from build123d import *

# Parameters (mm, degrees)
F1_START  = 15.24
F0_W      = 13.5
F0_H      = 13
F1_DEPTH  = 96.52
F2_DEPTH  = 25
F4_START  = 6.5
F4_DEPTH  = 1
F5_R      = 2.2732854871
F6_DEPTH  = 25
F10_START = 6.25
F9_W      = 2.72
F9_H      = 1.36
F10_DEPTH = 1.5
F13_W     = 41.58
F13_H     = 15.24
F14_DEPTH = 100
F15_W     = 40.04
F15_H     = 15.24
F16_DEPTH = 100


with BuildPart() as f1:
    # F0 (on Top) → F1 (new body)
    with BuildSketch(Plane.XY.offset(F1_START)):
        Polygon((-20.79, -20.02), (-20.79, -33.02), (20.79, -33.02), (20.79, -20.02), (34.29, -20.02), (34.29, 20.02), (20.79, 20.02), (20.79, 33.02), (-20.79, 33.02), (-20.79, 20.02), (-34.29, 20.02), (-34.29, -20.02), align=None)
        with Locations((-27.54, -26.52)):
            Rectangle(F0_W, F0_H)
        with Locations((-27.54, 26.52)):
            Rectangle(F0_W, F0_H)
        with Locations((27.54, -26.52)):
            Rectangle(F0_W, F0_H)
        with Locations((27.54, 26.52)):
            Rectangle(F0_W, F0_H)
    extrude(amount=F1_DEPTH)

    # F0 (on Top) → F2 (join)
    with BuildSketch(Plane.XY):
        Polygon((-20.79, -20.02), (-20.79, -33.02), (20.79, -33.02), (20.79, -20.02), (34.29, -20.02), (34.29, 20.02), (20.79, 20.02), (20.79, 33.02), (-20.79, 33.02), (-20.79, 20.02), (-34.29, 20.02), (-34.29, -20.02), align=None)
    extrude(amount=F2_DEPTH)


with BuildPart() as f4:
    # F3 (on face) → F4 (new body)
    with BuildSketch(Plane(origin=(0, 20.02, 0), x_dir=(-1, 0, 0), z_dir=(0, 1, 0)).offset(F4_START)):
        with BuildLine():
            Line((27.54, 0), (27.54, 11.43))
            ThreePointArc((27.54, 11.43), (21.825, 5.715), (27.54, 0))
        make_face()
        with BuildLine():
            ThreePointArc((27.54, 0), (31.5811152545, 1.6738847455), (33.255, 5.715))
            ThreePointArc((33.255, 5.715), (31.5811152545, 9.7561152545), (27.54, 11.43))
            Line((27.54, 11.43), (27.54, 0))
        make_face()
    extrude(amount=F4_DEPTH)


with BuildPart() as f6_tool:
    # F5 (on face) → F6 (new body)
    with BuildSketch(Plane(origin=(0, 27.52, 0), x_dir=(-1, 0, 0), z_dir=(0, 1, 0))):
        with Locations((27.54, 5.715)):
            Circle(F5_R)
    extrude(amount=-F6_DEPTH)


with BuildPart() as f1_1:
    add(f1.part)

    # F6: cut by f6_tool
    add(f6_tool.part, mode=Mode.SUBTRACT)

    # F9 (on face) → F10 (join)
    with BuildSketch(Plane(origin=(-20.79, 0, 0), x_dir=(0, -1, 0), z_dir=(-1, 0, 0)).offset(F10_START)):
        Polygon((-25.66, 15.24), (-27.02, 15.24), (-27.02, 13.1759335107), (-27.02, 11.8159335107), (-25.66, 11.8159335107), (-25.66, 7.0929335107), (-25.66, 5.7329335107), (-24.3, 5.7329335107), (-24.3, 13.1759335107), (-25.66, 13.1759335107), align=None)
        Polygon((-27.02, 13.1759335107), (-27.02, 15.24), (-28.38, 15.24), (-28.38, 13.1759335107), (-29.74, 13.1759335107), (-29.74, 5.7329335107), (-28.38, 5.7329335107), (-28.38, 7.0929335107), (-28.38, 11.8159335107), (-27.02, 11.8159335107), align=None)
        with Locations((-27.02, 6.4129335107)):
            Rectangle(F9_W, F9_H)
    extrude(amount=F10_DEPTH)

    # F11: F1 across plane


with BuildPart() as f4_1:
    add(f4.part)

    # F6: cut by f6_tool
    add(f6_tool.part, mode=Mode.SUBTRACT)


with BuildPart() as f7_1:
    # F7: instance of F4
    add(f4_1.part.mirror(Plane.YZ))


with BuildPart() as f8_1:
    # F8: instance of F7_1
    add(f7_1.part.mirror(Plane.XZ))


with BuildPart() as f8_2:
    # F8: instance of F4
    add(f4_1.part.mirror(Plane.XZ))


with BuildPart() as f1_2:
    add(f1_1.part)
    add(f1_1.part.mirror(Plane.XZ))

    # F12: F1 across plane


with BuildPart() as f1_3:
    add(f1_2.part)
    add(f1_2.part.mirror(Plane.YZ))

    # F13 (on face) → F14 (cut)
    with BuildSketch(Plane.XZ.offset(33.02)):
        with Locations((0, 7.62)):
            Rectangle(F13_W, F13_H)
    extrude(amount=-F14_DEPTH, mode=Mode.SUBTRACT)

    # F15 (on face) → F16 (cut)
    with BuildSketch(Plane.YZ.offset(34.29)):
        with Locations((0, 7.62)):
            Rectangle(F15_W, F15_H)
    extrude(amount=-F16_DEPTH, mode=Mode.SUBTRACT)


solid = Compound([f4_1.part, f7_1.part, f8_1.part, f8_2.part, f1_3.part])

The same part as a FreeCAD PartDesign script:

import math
import FreeCAD as App
import Part
import Sketcher

doc = App.newDocument("Part")
body = doc.addObject("PartDesign::Body", "Body")

sketch1 = body.newObject("Sketcher::SketchObject", "Sketch")
sketch1.AttachmentSupport = (doc.getObject("XY_Plane"), [""])
sketch1.MapMode = "FlatFace"
sketch1.AttachmentOffset = App.Placement(App.Vector(0, 0, 15.24), App.Rotation())
sketch1.addGeometry([
    Part.LineSegment(App.Vector(-34, 33, 0), App.Vector(-34, -33, 0)),
    Part.LineSegment(App.Vector(-34, -33, 0), App.Vector(34, -33, 0)),
    Part.LineSegment(App.Vector(34, -33, 0), App.Vector(34, 33, 0)),
    Part.LineSegment(App.Vector(34, 33, 0), App.Vector(-34, 33, 0)),
], False)
sketch1.addConstraint([
    Sketcher.Constraint("Coincident", 0, 2, 1, 1),
    Sketcher.Constraint("Coincident", 1, 2, 2, 1),
    Sketcher.Constraint("Coincident", 2, 2, 3, 1),
    Sketcher.Constraint("Coincident", 3, 2, 0, 1),
    Sketcher.Constraint("Vertical", 0),
    Sketcher.Constraint("Horizontal", 1),
    Sketcher.Constraint("Vertical", 2),
    Sketcher.Constraint("Horizontal", 3),
    Sketcher.Constraint("Symmetric", 0, 2, 2, 2, -1, 1),
    Sketcher.Constraint("DistanceX", 1, 1, 1, 2, 68.58),
    Sketcher.Constraint("DistanceY", 0, 2, 0, 1, 66.04),
])
pad1 = body.newObject("PartDesign::Pad", "Pad")
pad1.Profile = sketch1
pad1.Length = 96.52

sketch2 = body.newObject("Sketcher::SketchObject", "Sketch001")
sketch2.AttachmentSupport = (doc.getObject("XY_Plane"), [""])
sketch2.MapMode = "FlatFace"
sketch2.addGeometry([
    Part.LineSegment(App.Vector(-21, -20, 0), App.Vector(-21, -33, 0)),
    Part.LineSegment(App.Vector(-21, -33, 0), App.Vector(21, -33, 0)),
    Part.LineSegment(App.Vector(21, -33, 0), App.Vector(21, -20, 0)),
    Part.LineSegment(App.Vector(21, -20, 0), App.Vector(34, -20, 0)),
    Part.LineSegment(App.Vector(34, -20, 0), App.Vector(34, 20, 0)),
    Part.LineSegment(App.Vector(34, 20, 0), App.Vector(21, 20, 0)),
    Part.LineSegment(App.Vector(21, 20, 0), App.Vector(21, 33, 0)),
    Part.LineSegment(App.Vector(21, 33, 0), App.Vector(-21, 33, 0)),
    Part.LineSegment(App.Vector(-21, 33, 0), App.Vector(-21, 20, 0)),
    Part.LineSegment(App.Vector(-21, 20, 0), App.Vector(-34, 20, 0)),
    Part.LineSegment(App.Vector(-34, 20, 0), App.Vector(-34, -20, 0)),
    Part.LineSegment(App.Vector(-34, -20, 0), App.Vector(-21, -20, 0)),
], False)
sketch2.addConstraint([
    Sketcher.Constraint("Coincident", 0, 2, 1, 1),
    Sketcher.Constraint("Coincident", 1, 2, 2, 1),
    Sketcher.Constraint("Coincident", 2, 2, 3, 1),
    Sketcher.Constraint("Coincident", 3, 2, 4, 1),
    Sketcher.Constraint("Coincident", 4, 2, 5, 1),
    Sketcher.Constraint("Coincident", 5, 2, 6, 1),
    Sketcher.Constraint("Coincident", 6, 2, 7, 1),
    Sketcher.Constraint("Coincident", 7, 2, 8, 1),
    Sketcher.Constraint("Coincident", 8, 2, 9, 1),
    Sketcher.Constraint("Coincident", 9, 2, 10, 1),
    Sketcher.Constraint("Coincident", 10, 2, 11, 1),
    Sketcher.Constraint("Coincident", 11, 2, 0, 1),
    Sketcher.Constraint("Vertical", 0),
    Sketcher.Constraint("Horizontal", 1),
    Sketcher.Constraint("Vertical", 2),
    Sketcher.Constraint("Horizontal", 3),
    Sketcher.Constraint("Vertical", 4),
    Sketcher.Constraint("Horizontal", 5),
    Sketcher.Constraint("Vertical", 6),
    Sketcher.Constraint("Horizontal", 7),
    Sketcher.Constraint("Vertical", 8),
    Sketcher.Constraint("Horizontal", 9),
    Sketcher.Constraint("Vertical", 10),
    Sketcher.Constraint("Horizontal", 11),
    Sketcher.Constraint("Symmetric", 0, 2, 6, 2, -1, 1),
    Sketcher.Constraint("Symmetric", 2, 2, 8, 2, -1, 1),
    Sketcher.Constraint("Symmetric", 4, 2, 10, 2, -1, 1),
    Sketcher.Constraint("Symmetric", 5, 2, 8, 2, -2),
    Sketcher.Constraint("DistanceY", 0, 2, 0, 1, 13.0),
    Sketcher.Constraint("DistanceX", 3, 1, 3, 2, 13.5),
    Sketcher.Constraint("DistanceX", 1, 1, 1, 2, 41.58),
    Sketcher.Constraint("DistanceY", 4, 1, 4, 2, 40.04),
])
pad2 = body.newObject("PartDesign::Pad", "Pad001")
pad2.Profile = sketch2
pad2.Length = 25
body2 = doc.addObject("PartDesign::Body", "Body001")

sketch3 = body2.newObject("Sketcher::SketchObject", "Sketch002")
sketch3.AttachmentSupport = (doc.getObject("XZ_Plane001"), [""])
sketch3.MapMode = "FlatFace"
sketch3.AttachmentOffset = App.Placement(App.Vector(0, 0, -26.52), App.Rotation())
sketch3.addGeometry([
    Part.ArcOfCircle(Part.Circle(App.Vector(-28, 6, 0), App.Vector(0, 0, 1), 6), math.radians(-90), math.radians(90)),
    Part.ArcOfCircle(Part.Circle(App.Vector(-28, 6, 0), App.Vector(0, 0, 1), 6), math.radians(180), math.radians(270)),
    Part.ArcOfCircle(Part.Circle(App.Vector(-28, 6, 0), App.Vector(0, 0, 1), 6), math.radians(90), math.radians(180)),
], False)
sketch3.addConstraint([
    Sketcher.Constraint("Tangent", 0, 1, 1, 2),
    Sketcher.Constraint("Tangent", 1, 1, 2, 2),
    Sketcher.Constraint("Tangent", 2, 1, 0, 2),
    Sketcher.Constraint("PointOnObject", 0, 1, -1),
    Sketcher.Constraint("Horizontal", 2, 3, 1, 1),
    Sketcher.Constraint("Vertical", 2, 3, 0, 1),
    Sketcher.Constraint("Vertical", 0, 1, 2, 1),
    Sketcher.Constraint("Radius", 0, 5.715),
    Sketcher.Constraint("DistanceX", 0, 3, -1, 1, 27.54),
])
pad3 = body2.newObject("PartDesign::Pad", "Pad002")
pad3.Profile = sketch3
pad3.Length = 1
pad3.Reversed = True
body3 = doc.addObject("PartDesign::Body", "Body002")

sketch4 = body3.newObject("Sketcher::SketchObject", "Sketch003")
sketch4.AttachmentSupport = (doc.getObject("XZ_Plane002"), [""])
sketch4.MapMode = "FlatFace"
sketch4.AttachmentOffset = App.Placement(App.Vector(0, 0, -27.52), App.Rotation())
sketch4.addGeometry(Part.Circle(App.Vector(-27.5, 5.7, 0), App.Vector(0, 0, 1), 2.3), False)
sketch4.addConstraint([
    Sketcher.Constraint("Diameter", 0, 4.546571),
    Sketcher.Constraint("DistanceX", 0, 3, -1, 1, 27.54),
    Sketcher.Constraint("DistanceY", -1, 1, 0, 3, 5.715),
])
pad4 = body3.newObject("PartDesign::Pad", "Pad003")
pad4.Profile = sketch4
pad4.Length = 25
doc.recompute()

body4 = doc.addObject("PartDesign::Body", "Body003")
body4.BaseFeature = body3
boolean = body.newObject("PartDesign::Boolean", "Boolean")
boolean.Type = "Cut"
boolean.addObjects([body4])
doc.recompute()

sketch5 = body.newObject("Sketcher::SketchObject", "Sketch004")
sketch5.AttachmentSupport = (doc.getObject("YZ_Plane"), [""])
sketch5.MapMode = "FlatFace"
sketch5.AttachmentOffset = App.Placement(App.Vector(0, 0, -27.04), App.Rotation())
sketch5.addGeometry([
    Part.LineSegment(App.Vector(25.7, 15.2, 0), App.Vector(28.4, 15.2, 0)),
    Part.LineSegment(App.Vector(28.4, 15.2, 0), App.Vector(28.4, 13.2, 0)),
    Part.LineSegment(App.Vector(28.4, 13.2, 0), App.Vector(29.7, 13.2, 0)),
    Part.LineSegment(App.Vector(29.7, 13.2, 0), App.Vector(29.7, 5.7, 0)),
    Part.LineSegment(App.Vector(29.7, 5.7, 0), App.Vector(24.3, 5.7, 0)),
    Part.LineSegment(App.Vector(24.3, 5.7, 0), App.Vector(24.3, 13.2, 0)),
    Part.LineSegment(App.Vector(24.3, 13.2, 0), App.Vector(25.7, 13.2, 0)),
    Part.LineSegment(App.Vector(25.7, 13.2, 0), App.Vector(25.7, 15.2, 0)),
    Part.LineSegment(App.Vector(28.4, 7.1, 0), App.Vector(28.4, 11.8, 0)),
    Part.LineSegment(App.Vector(28.4, 11.8, 0), App.Vector(25.7, 11.8, 0)),
    Part.LineSegment(App.Vector(25.7, 11.8, 0), App.Vector(25.7, 7.1, 0)),
    Part.LineSegment(App.Vector(25.7, 7.1, 0), App.Vector(28.4, 7.1, 0)),
], False)
sketch5.addConstraint([
    Sketcher.Constraint("Coincident", 0, 2, 1, 1),
    Sketcher.Constraint("Coincident", 1, 2, 2, 1),
    Sketcher.Constraint("Coincident", 2, 2, 3, 1),
    Sketcher.Constraint("Coincident", 3, 2, 4, 1),
    Sketcher.Constraint("Coincident", 4, 2, 5, 1),
    Sketcher.Constraint("Coincident", 5, 2, 6, 1),
    Sketcher.Constraint("Coincident", 6, 2, 7, 1),
    Sketcher.Constraint("Coincident", 7, 2, 0, 1),
    Sketcher.Constraint("Coincident", 8, 2, 9, 1),
    Sketcher.Constraint("Coincident", 9, 2, 10, 1),
    Sketcher.Constraint("Coincident", 10, 2, 11, 1),
    Sketcher.Constraint("Coincident", 11, 2, 8, 1),
    Sketcher.Constraint("Horizontal", 0),
    Sketcher.Constraint("Vertical", 1),
    Sketcher.Constraint("Horizontal", 2),
    Sketcher.Constraint("Vertical", 3),
    Sketcher.Constraint("Horizontal", 4),
    Sketcher.Constraint("Vertical", 5),
    Sketcher.Constraint("Horizontal", 6),
    Sketcher.Constraint("Vertical", 7),
    Sketcher.Constraint("Vertical", 8),
    Sketcher.Constraint("Horizontal", 9),
    Sketcher.Constraint("Vertical", 10),
    Sketcher.Constraint("Horizontal", 11),
    Sketcher.Constraint("Horizontal", 2, 2, 5, 2),
    Sketcher.Constraint("Vertical", 1, 2, 8, 2),
    Sketcher.Constraint("Vertical", 7, 2, 9, 2),
    Sketcher.Constraint("Equal", 2, 6),
    Sketcher.Constraint("DistanceX", 0, 1, 0, 2, 2.72),
    Sketcher.Constraint("DistanceX", 2, 1, 2, 2, 1.36),
    Sketcher.Constraint("DistanceX", -1, 1, 4, 2, 24.3),
    Sketcher.Constraint("DistanceY", 3, 2, 3, 1, 7.443),
    Sketcher.Constraint("DistanceY", 8, 1, 8, 2, 4.723),
    Sketcher.Constraint("DistanceY", -1, 1, 0, 2, 15.24),
    Sketcher.Constraint("DistanceY", 8, 2, 1, 2, 1.36),
    Sketcher.Constraint("DistanceY", 1, 2, 1, 1, 2.064066),
])
pad5 = body.newObject("PartDesign::Pad", "Pad004")
pad5.Profile = sketch5
pad5.Length = 1.5
pad5.Reversed = True
doc.recompute()

boolean2 = body2.newObject("PartDesign::Boolean", "Boolean001")
boolean2.Type = "Cut"
boolean2.addObjects([body3])
body5 = doc.addObject("PartDesign::Body", "Body004")
doc.recompute()

mirroring = doc.addObject("Part::Mirroring", "Mirroring")
mirroring.Source = body2
mirroring.Base = App.Vector(0, 0, 0)
mirroring.Normal = App.Vector(1, 0, 0)
body5.BaseFeature = mirroring
doc.recompute()
body6 = doc.addObject("PartDesign::Body", "Body005")
doc.recompute()

mirroring2 = doc.addObject("Part::Mirroring", "Mirroring001")
mirroring2.Source = body5
mirroring2.Base = App.Vector(0, 0, 0)
mirroring2.Normal = App.Vector(0, -1, 0)
body6.BaseFeature = mirroring2
doc.recompute()
body7 = doc.addObject("PartDesign::Body", "Body006")
doc.recompute()

mirroring3 = doc.addObject("Part::Mirroring", "Mirroring002")
mirroring3.Source = body2
mirroring3.Base = App.Vector(0, 0, 0)
mirroring3.Normal = App.Vector(0, -1, 0)
body7.BaseFeature = mirroring3
doc.recompute()
body8 = doc.addObject("PartDesign::Body", "Body007")
doc.recompute()

body8.BaseFeature = body
doc.recompute()

mirroring4 = doc.addObject("Part::Mirroring", "Mirroring003")
mirroring4.Source = body
mirroring4.Base = App.Vector(0, 0, 0)
mirroring4.Normal = App.Vector(0, -1, 0)
body9 = doc.addObject("PartDesign::Body", "Body008")
body9.BaseFeature = mirroring4
boolean3 = body8.newObject("PartDesign::Boolean", "Boolean002")
boolean3.Type = "Fuse"
boolean3.addObjects([body9])
doc.recompute()
body10 = doc.addObject("PartDesign::Body", "Body009")
doc.recompute()

body10.BaseFeature = body8
doc.recompute()

mirroring5 = doc.addObject("Part::Mirroring", "Mirroring004")
mirroring5.Source = body8
mirroring5.Base = App.Vector(0, 0, 0)
mirroring5.Normal = App.Vector(1, 0, 0)
body11 = doc.addObject("PartDesign::Body", "Body010")
body11.BaseFeature = mirroring5
boolean4 = body10.newObject("PartDesign::Boolean", "Boolean003")
boolean4.Type = "Fuse"
boolean4.addObjects([body11])
doc.recompute()

sketch6 = body10.newObject("Sketcher::SketchObject", "Sketch005")
sketch6.AttachmentSupport = (doc.getObject("XZ_Plane009"), [""])
sketch6.MapMode = "FlatFace"
sketch6.AttachmentOffset = App.Placement(App.Vector(0, 0, 33.02), App.Rotation())
sketch6.addGeometry([
    Part.LineSegment(App.Vector(-21, 15, 0), App.Vector(-21, 0, 0)),
    Part.LineSegment(App.Vector(-21, 0, 0), App.Vector(21, 0, 0)),
    Part.LineSegment(App.Vector(21, 0, 0), App.Vector(21, 15, 0)),
    Part.LineSegment(App.Vector(21, 15, 0), App.Vector(-21, 15, 0)),
], False)
sketch6.addConstraint([
    Sketcher.Constraint("Coincident", 0, 2, 1, 1),
    Sketcher.Constraint("Coincident", 1, 2, 2, 1),
    Sketcher.Constraint("Coincident", 2, 2, 3, 1),
    Sketcher.Constraint("Coincident", 3, 2, 0, 1),
    Sketcher.Constraint("Vertical", 0),
    Sketcher.Constraint("Horizontal", 1),
    Sketcher.Constraint("Vertical", 2),
    Sketcher.Constraint("Horizontal", 3),
    Sketcher.Constraint("Symmetric", 0, 2, 1, 2, -1, 1),
    Sketcher.Constraint("DistanceX", 1, 1, 1, 2, 41.58),
    Sketcher.Constraint("DistanceY", 0, 2, 0, 1, 15.24),
])
pocket1 = body10.newObject("PartDesign::Pocket", "Pocket")
pocket1.Profile = sketch6
pocket1.Length = 100

sketch7 = body10.newObject("Sketcher::SketchObject", "Sketch006")
sketch7.AttachmentSupport = (doc.getObject("YZ_Plane009"), [""])
sketch7.MapMode = "FlatFace"
sketch7.AttachmentOffset = App.Placement(App.Vector(0, 0, 34.29), App.Rotation())
sketch7.addGeometry([
    Part.LineSegment(App.Vector(-20, 15, 0), App.Vector(-20, 0, 0)),
    Part.LineSegment(App.Vector(-20, 0, 0), App.Vector(20, 0, 0)),
    Part.LineSegment(App.Vector(20, 0, 0), App.Vector(20, 15, 0)),
    Part.LineSegment(App.Vector(20, 15, 0), App.Vector(-20, 15, 0)),
], False)
sketch7.addConstraint([
    Sketcher.Constraint("Coincident", 0, 2, 1, 1),
    Sketcher.Constraint("Coincident", 1, 2, 2, 1),
    Sketcher.Constraint("Coincident", 2, 2, 3, 1),
    Sketcher.Constraint("Coincident", 3, 2, 0, 1),
    Sketcher.Constraint("Vertical", 0),
    Sketcher.Constraint("Horizontal", 1),
    Sketcher.Constraint("Vertical", 2),
    Sketcher.Constraint("Horizontal", 3),
    Sketcher.Constraint("Symmetric", 0, 2, 1, 2, -1, 1),
    Sketcher.Constraint("DistanceX", 1, 1, 1, 2, 40.04),
    Sketcher.Constraint("DistanceY", 0, 2, 0, 1, 15.24),
])
pocket2 = body10.newObject("PartDesign::Pocket", "Pocket001")
pocket2.Profile = sketch7
pocket2.Length = 100
mirroring.Visibility = False
mirroring2.Visibility = False
mirroring3.Visibility = False
mirroring4.Visibility = False
mirroring5.Visibility = False

doc.recompute()
